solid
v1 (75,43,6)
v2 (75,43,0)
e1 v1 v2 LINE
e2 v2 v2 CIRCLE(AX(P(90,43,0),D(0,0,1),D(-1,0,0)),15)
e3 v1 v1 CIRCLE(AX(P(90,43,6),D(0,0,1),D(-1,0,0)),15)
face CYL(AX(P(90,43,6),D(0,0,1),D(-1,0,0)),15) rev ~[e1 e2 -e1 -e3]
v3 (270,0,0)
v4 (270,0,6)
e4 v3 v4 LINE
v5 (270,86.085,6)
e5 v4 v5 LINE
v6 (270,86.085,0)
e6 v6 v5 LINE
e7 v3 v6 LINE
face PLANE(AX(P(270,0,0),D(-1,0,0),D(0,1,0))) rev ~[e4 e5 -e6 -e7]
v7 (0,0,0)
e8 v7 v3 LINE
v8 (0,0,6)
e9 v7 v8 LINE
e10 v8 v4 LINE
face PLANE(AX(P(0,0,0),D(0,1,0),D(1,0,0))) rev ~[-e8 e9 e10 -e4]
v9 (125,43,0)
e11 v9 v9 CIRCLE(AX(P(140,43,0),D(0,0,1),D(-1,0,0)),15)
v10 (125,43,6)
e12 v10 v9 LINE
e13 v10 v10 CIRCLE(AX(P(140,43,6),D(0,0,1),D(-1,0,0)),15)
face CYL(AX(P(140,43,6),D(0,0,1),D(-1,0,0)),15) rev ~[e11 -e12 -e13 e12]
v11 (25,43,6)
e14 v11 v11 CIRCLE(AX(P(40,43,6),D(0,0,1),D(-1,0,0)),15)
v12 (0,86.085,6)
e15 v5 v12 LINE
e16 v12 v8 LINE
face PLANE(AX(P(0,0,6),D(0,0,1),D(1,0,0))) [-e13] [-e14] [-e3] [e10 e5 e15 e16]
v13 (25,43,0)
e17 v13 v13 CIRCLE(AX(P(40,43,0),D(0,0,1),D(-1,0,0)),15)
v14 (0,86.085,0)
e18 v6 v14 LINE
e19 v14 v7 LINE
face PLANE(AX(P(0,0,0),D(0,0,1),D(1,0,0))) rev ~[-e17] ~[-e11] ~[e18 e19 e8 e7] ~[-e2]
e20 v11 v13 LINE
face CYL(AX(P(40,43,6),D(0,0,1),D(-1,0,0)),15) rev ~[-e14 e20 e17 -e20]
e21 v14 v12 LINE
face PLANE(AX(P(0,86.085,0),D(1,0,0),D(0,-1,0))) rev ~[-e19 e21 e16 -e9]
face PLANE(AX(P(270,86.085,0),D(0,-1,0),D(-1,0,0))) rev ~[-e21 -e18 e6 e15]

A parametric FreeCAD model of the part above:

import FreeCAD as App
import Part
import Sketcher

V = App.Vector

doc = App.newDocument("Part")
body = doc.addObject("PartDesign::Body", "Body")

sketch1 = body.newObject("Sketcher::SketchObject", "Sketch")
sketch1.AttachmentSupport = (doc.getObject("XY_Plane"), [""])
sketch1.MapMode = "FlatFace"
sketch1.addGeometry([
    Part.LineSegment(V(0, 86, 0), V(0, 0, 0)),
    Part.LineSegment(V(0, 0, 0), V(270, 0, 0)),
    Part.LineSegment(V(270, 0, 0), V(270, 86, 0)),
    Part.LineSegment(V(270, 86, 0), V(0, 86, 0)),
], False)
sketch1.addConstraint([
    Sketcher.Constraint("Coincident", 0, 2, 1, 1),
    Sketcher.Constraint("Coincident", 1, 2, 2, 1),
    Sketcher.Constraint("Coincident", 2, 2, 3, 1),
    Sketcher.Constraint("Coincident", 3, 2, 0, 1),
    Sketcher.Constraint("Vertical", 0),
    Sketcher.Constraint("Horizontal", 1),
    Sketcher.Constraint("Vertical", 2),
    Sketcher.Constraint("Horizontal", 3),
    Sketcher.Constraint("Coincident", 0, 2, -1, 1),
    Sketcher.Constraint("DistanceX", 1, 1, 1, 2, 270.0),
    Sketcher.Constraint("DistanceY", 0, 2, 0, 1, 86.085),
])
pad1 = body.newObject("PartDesign::Pad", "Pad")
pad1.Profile = sketch1
pad1.Length = 6

sketch2 = body.newObject("Sketcher::SketchObject", "Sketch001")
sketch2.AttachmentSupport = (doc.getObject("XY_Plane"), [""])
sketch2.MapMode = "FlatFace"
sketch2.AttachmentOffset = App.Placement(V(0, 0, 6), App.Rotation())
sketch2.addGeometry([
    Part.Circle(V(90, 43, 0), V(0, 0, 1), 15),
    Part.Circle(V(140, 43, 0), V(0, 0, 1), 15),
], False)
sketch2.addConstraint([
    Sketcher.Constraint("Equal", 0, 1),
    Sketcher.Constraint("Horizontal", 0, 3, 1, 3),
    Sketcher.Constraint("Diameter", 0, 30.0),
    Sketcher.Constraint("DistanceY", -1, 1, 0, 3, 43.0),
    Sketcher.Constraint("DistanceX", 0, 3, 1, 3, 50.0),
    Sketcher.Constraint("DistanceX", -1, 1, 0, 3, 90.0),
])
pocket1 = body.newObject("PartDesign::Pocket", "Pocket")
pocket1.Profile = sketch2
pocket1.Length = 6

sketch3 = body.newObject("Sketcher::SketchObject", "Sketch002")
sketch3.AttachmentSupport = (doc.getObject("XY_Plane"), [""])
sketch3.MapMode = "FlatFace"
sketch3.AttachmentOffset = App.Placement(V(0, 0, 6), App.Rotation())
sketch3.addGeometry(Part.Circle(V(40, 43, 0), V(0, 0, 1), 15), False)
sketch3.addConstraint([
    Sketcher.Constraint("Diameter", 0, 30.0),
    Sketcher.Constraint("DistanceX", -1, 1, 0, 3, 40.0),
    Sketcher.Constraint("DistanceY", -1, 1, 0, 3, 43.0),
])
pocket2 = body.newObject("PartDesign::Pocket", "Pocket001")
pocket2.Profile = sketch3
pocket2.Length = 6

doc.recompute()
